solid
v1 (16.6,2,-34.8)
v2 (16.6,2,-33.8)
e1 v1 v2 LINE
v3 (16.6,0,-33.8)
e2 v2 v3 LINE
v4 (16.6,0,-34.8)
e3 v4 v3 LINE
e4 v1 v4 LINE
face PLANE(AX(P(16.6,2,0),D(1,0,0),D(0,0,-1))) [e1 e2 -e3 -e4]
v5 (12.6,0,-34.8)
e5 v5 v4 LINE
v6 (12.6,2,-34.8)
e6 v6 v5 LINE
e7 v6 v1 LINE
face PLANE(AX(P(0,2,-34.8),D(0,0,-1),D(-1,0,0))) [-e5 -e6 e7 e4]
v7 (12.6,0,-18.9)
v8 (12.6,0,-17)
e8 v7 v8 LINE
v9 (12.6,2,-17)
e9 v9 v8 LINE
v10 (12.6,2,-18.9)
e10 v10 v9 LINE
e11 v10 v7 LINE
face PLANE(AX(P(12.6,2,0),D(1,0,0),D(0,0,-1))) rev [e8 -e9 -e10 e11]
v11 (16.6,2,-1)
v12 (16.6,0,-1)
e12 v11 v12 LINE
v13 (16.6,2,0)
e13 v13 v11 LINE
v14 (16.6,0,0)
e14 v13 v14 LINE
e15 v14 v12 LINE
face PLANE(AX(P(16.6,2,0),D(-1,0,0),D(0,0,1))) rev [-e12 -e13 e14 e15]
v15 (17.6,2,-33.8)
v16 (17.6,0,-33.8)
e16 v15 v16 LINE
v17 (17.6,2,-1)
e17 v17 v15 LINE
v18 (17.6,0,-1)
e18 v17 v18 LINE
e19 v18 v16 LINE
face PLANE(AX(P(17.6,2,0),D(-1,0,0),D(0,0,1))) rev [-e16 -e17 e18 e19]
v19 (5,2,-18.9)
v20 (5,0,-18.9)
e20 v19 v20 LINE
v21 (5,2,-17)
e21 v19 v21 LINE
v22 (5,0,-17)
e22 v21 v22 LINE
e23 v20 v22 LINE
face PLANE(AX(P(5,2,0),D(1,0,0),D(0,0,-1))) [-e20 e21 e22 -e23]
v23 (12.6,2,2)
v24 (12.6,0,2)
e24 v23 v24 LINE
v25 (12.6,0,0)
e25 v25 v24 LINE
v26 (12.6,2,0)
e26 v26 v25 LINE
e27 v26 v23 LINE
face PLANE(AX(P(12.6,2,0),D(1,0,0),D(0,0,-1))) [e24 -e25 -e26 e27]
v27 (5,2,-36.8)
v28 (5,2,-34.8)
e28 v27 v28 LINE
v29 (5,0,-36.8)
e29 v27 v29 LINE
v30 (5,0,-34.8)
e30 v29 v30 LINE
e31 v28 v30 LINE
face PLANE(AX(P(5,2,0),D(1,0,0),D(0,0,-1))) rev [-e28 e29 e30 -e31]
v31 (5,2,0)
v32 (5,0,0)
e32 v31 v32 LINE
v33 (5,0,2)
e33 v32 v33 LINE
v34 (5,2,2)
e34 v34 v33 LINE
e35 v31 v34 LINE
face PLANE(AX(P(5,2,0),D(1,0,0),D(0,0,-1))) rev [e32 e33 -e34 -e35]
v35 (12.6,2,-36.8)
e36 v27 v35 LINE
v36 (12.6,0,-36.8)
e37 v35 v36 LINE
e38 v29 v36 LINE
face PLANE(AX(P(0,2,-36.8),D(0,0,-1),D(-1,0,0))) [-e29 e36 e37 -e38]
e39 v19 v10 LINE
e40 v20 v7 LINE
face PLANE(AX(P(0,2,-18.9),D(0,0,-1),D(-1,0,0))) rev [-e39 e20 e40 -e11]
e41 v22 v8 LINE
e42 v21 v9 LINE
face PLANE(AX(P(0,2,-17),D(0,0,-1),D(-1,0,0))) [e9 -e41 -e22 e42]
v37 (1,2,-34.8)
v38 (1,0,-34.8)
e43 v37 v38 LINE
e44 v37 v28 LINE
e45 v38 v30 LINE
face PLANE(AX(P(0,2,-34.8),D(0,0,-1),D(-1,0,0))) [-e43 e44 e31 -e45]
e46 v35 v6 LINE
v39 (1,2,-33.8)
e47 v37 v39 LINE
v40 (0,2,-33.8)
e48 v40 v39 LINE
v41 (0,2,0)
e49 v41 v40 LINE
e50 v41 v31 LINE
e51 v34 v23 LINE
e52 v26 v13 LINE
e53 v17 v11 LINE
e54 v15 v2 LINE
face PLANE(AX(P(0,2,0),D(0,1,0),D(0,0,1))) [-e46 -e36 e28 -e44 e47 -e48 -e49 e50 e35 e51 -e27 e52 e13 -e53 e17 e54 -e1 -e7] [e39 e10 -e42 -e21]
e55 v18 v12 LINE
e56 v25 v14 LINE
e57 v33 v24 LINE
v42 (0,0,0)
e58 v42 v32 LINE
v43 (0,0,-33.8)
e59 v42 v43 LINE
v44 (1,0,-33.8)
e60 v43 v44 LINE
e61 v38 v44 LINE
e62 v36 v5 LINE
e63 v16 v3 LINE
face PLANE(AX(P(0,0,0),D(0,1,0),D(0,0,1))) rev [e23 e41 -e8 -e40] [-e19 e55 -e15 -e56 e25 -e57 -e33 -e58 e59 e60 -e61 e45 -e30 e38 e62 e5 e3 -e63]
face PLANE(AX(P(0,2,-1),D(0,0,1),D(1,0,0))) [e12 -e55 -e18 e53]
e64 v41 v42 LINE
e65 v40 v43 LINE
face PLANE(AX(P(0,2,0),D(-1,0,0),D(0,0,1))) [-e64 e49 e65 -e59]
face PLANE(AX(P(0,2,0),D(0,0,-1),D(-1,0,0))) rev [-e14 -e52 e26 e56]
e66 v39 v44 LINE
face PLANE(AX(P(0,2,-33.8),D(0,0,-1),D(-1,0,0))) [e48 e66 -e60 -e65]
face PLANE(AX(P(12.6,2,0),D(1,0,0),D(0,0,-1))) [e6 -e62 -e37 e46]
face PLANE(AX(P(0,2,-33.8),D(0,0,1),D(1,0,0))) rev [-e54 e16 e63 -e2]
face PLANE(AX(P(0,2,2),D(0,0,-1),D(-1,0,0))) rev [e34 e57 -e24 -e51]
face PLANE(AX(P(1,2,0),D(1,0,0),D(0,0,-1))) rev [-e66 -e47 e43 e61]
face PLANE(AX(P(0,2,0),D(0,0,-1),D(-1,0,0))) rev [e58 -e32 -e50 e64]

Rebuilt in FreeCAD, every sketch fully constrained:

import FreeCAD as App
import Part
import Sketcher
Q = App.Units.Quantity


def add_polygon(sketch, points):
    """Adds a closed chain of lines whose ends are joined by coincident constraints."""
    first, n = sketch.GeometryCount, len(points)
    for a, b in zip(points, points[1:] + points[:1]):
        sketch.addGeometry(Part.LineSegment(App.Vector(*a, 0), App.Vector(*b, 0)), False)
    for i in range(n):
        sketch.addConstraint(Sketcher.Constraint("Coincident", first + i, 2, first + (i + 1) % n, 1))

doc = App.newDocument("Part")
body = doc.addObject("PartDesign::Body", "Body")

# Sketch on XZ plane
sketch1 = body.newObject("Sketcher::SketchObject", "Sketch")
sketch1.AttachmentSupport = (doc.getObject("XZ_Plane"), [""])
sketch1.MapMode = "FlatFace"
add_polygon(sketch1, [(0, -33.8), (0, 0), (5, 0), (5, 2), (12.6, 2), (12.6, 0), (16.6, 0), (16.6, -1), (17.6, -1), (17.6, -33.8), (16.6, -33.8), (16.6, -34.8), (12.6, -34.8), (12.6, -36.8), (5, -36.8), (5, -34.8), (1, -34.8), (1, -33.8)])  # lines 0-17
add_polygon(sketch1, [(12.6, -17), (5, -17), (5, -18.9), (12.6, -18.9)])  # lines 18-21
sketch1.addConstraint([
    Sketcher.Constraint("Vertical", 0),
    Sketcher.Constraint("Horizontal", 1),
    Sketcher.Constraint("Vertical", 2),
    Sketcher.Constraint("Horizontal", 3),
    Sketcher.Constraint("Vertical", 4),
    Sketcher.Constraint("Horizontal", 5),
    Sketcher.Constraint("Vertical", 6),
    Sketcher.Constraint("Horizontal", 7),
    Sketcher.Constraint("Vertical", 8),
    Sketcher.Constraint("Horizontal", 9),
    Sketcher.Constraint("Vertical", 10),
    Sketcher.Constraint("Horizontal", 11),
    Sketcher.Constraint("Vertical", 12),
    Sketcher.Constraint("Horizontal", 13),
    Sketcher.Constraint("Vertical", 14),
    Sketcher.Constraint("Horizontal", 15),
    Sketcher.Constraint("Vertical", 16),
    Sketcher.Constraint("Horizontal", 17),
    Sketcher.Constraint("Horizontal", 18),
    Sketcher.Constraint("Vertical", 19),
    Sketcher.Constraint("Horizontal", 20),
    Sketcher.Constraint("Vertical", 21),
    Sketcher.Constraint("Coincident", 0, 2, -1, 1),
    Sketcher.Constraint("PointOnObject", 4, 2, -1),
    Sketcher.Constraint("Horizontal", 11, 2, 14, 2),
    Sketcher.Constraint("Horizontal", 9, 2, 16, 2),
    Sketcher.Constraint("Vertical", 6, 2, 9, 2),
    Sketcher.Constraint("Vertical", 4, 2, 11, 2),
    Sketcher.Constraint("Vertical", 2, 2, 13, 2),
    Sketcher.Constraint("Vertical", 14, 2, 18, 2),
    Sketcher.Constraint("Vertical", 12, 2, 20, 2),
    Sketcher.Constraint("Equal", 11, 15),
    Sketcher.Constraint("Equal", 9, 17),
    Sketcher.Constraint("Equal", 17, 6),
    Sketcher.Constraint("Equal", 6, 10),
    Sketcher.Constraint("Equal", 4, 12),
    Sketcher.Constraint("DistanceX", 1, 1, 1, 2, Q("5 mm")),
    Sketcher.Constraint("DistanceX", 5, 1, 5, 2, Q("4 mm")),
    Sketcher.Constraint("DistanceY", 2, 1, 2, 2, Q("2 mm")),
    Sketcher.Constraint("DistanceX", 3, 1, 3, 2, Q("7.6 mm")),
    Sketcher.Constraint("DistanceY", 0, 1, 0, 2, Q("33.8 mm")),
    Sketcher.Constraint("DistanceY", 19, 2, 19, 1, Q("1.9 mm")),
    Sketcher.Constraint("DistanceY", 18, 2, -1, 1, Q("17 mm")),
])
pad1 = body.newObject("PartDesign::Pad", "Pad")
pad1.Profile = sketch1
pad1.Length = 2
pad1.Reversed = True

doc.recompute()
